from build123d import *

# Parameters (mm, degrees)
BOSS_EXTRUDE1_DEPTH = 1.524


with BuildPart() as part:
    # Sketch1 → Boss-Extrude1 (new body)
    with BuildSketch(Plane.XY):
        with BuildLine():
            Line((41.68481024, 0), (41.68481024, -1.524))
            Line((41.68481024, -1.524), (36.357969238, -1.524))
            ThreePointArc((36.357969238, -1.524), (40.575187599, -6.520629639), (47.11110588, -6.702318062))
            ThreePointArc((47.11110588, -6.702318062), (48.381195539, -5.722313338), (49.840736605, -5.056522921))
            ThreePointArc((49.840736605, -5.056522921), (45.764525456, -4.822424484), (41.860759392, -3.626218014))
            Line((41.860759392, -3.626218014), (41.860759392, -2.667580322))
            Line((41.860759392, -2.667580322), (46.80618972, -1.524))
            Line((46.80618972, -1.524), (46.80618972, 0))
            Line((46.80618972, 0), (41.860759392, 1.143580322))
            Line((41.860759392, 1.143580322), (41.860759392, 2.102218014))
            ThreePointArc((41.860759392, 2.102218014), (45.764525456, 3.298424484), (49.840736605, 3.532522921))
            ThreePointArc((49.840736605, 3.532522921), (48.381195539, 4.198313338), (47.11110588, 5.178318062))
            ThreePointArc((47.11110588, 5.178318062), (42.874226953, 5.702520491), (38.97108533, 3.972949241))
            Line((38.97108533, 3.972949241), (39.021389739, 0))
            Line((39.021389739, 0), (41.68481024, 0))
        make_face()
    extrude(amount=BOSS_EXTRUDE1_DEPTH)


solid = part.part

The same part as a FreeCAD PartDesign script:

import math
import FreeCAD as App
import Part
import Sketcher
from FreeCAD import Vector
Q = App.Units.Quantity

doc = App.newDocument("Part")
params = doc.addObject("Spreadsheet::Sheet", "Params")
for row, (alias, value) in enumerate([
    ("sketch1_height", "0.06 in"),
    ("pad1_length", "0.06 in"),
], start=1):
    params.set(f"A{row}", alias)
    params.set(f"B{row}", "=" + value)
    params.setAlias(f"B{row}", alias)

body = doc.addObject("PartDesign::Body", "Body")

sketch1 = body.newObject("Sketcher::SketchObject", "Sketch")
sketch1.AttachmentSupport = (doc.getObject("XY_Plane"), [""])
sketch1.MapMode = "FlatFace"
sketch1.addGeometry(Part.LineSegment(Vector(41.7, 0, 0), Vector(41.7, -1.5, 0)), False)
sketch1.addGeometry(Part.LineSegment(Vector(41.7, -1.5, 0), Vector(36.4, -1.5, 0)), False)
sketch1.addGeometry(Part.ArcOfCircle(Part.Circle(Vector(44, 0.7, 0), Vector(0, 0, 1), 8), math.radians(-164), math.radians(-67)), False)
sketch1.addGeometry(Part.ArcOfCircle(Part.Circle(Vector(52, -11.7, 0), Vector(0, 0, 1), 7), math.radians(108), math.radians(134)), False)
sketch1.addGeometry(Part.ArcOfCircle(Part.Circle(Vector(48.8, 12, 0), Vector(0, 0, 1), 17.1), math.radians(-114), math.radians(-86)), False)
sketch1.addGeometry(Part.LineSegment(Vector(41.9, -3.6, 0), Vector(41.9, -2.7, 0)), False)
sketch1.addGeometry(Part.LineSegment(Vector(41.9, -2.7, 0), Vector(46.8, -1.5, 0)), False)
sketch1.addGeometry(Part.LineSegment(Vector(46.8, -1.5, 0), Vector(46.8, 0, 0)), False)
sketch1.addGeometry(Part.LineSegment(Vector(46.8, 0, 0), Vector(41.9, 1.1, 0)), False)
sketch1.addGeometry(Part.LineSegment(Vector(41.9, 1.1, 0), Vector(41.9, 2.1, 0)), False)
sketch1.addGeometry(Part.ArcOfCircle(Part.Circle(Vector(48.8, -13.5, 0), Vector(0, 0, 1), 17.1), math.radians(86), math.radians(114)), False)
sketch1.addGeometry(Part.ArcOfCircle(Part.Circle(Vector(52, 10.2, 0), Vector(0, 0, 1), 7), math.radians(-134), math.radians(-108)), False)
sketch1.addGeometry(Part.ArcOfCircle(Part.Circle(Vector(44, -2.2, 0), Vector(0, 0, 1), 8), math.radians(67), math.radians(129)), False)
sketch1.addGeometry(Part.LineSegment(Vector(39, 4, 0), Vector(39, 0, 0)), False)
sketch1.addGeometry(Part.LineSegment(Vector(39, 0, 0), Vector(41.7, 0, 0)), False)
sketch1.addConstraint(Sketcher.Constraint("Coincident", 0, 2, 1, 1))
sketch1.addConstraint(Sketcher.Constraint("Coincident", 1, 2, 2, 1))
sketch1.addConstraint(Sketcher.Constraint("Coincident", 2, 2, 3, 2))
sketch1.addConstraint(Sketcher.Constraint("Coincident", 3, 1, 4, 2))
sketch1.addConstraint(Sketcher.Constraint("Coincident", 4, 1, 5, 1))
sketch1.addConstraint(Sketcher.Constraint("Coincident", 5, 2, 6, 1))
sketch1.addConstraint(Sketcher.Constraint("Coincident", 6, 2, 7, 1))
sketch1.addConstraint(Sketcher.Constraint("Coincident", 7, 2, 8, 1))
sketch1.addConstraint(Sketcher.Constraint("Coincident", 8, 2, 9, 1))
sketch1.addConstraint(Sketcher.Constraint("Coincident", 9, 2, 10, 2))
sketch1.addConstraint(Sketcher.Constraint("Coincident", 10, 1, 11, 2))
sketch1.addConstraint(Sketcher.Constraint("Coincident", 11, 1, 12, 1))
sketch1.addConstraint(Sketcher.Constraint("Coincident", 12, 2, 13, 1))
sketch1.addConstraint(Sketcher.Constraint("Coincident", 13, 2, 14, 1))
sketch1.addConstraint(Sketcher.Constraint("Coincident", 14, 2, 0, 1))
sketch1.addConstraint(Sketcher.Constraint("Vertical", 0))
sketch1.addConstraint(Sketcher.Constraint("Horizontal", 1))
sketch1.addConstraint(Sketcher.Constraint("Vertical", 5))
sketch1.addConstraint(Sketcher.Constraint("Vertical", 7))
sketch1.addConstraint(Sketcher.Constraint("Vertical", 9))
sketch1.addConstraint(Sketcher.Constraint("Horizontal", 14))
sketch1.addConstraint(Sketcher.Constraint("Equal", 4, 10))
sketch1.addConstraint(Sketcher.Constraint("Equal", 3, 11))
sketch1.addConstraint(Sketcher.Constraint("Equal", 2, 12))
sketch1.addConstraint(Sketcher.Constraint("PointOnObject", 7, 2, -1))
sketch1.addConstraint(Sketcher.Constraint("PointOnObject", 13, 2, -1))
sketch1.addConstraint(Sketcher.Constraint("Horizontal", 1, 2, 6, 2))
sketch1.addConstraint(Sketcher.Constraint("Vertical", 4, 3, 10, 3))
sketch1.addConstraint(Sketcher.Constraint("Vertical", 3, 3, 11, 3))
sketch1.addConstraint(Sketcher.Constraint("Vertical", 2, 3, 12, 3))
sketch1.addConstraint(Sketcher.Constraint("Vertical", 5, 2, 8, 2))
sketch1.addConstraint(Sketcher.Constraint("Vertical", 3, 1, 10, 1))
sketch1.addConstraint(Sketcher.Constraint("Vertical", 2, 2, 11, 1))
sketch1.addConstraint(Sketcher.Constraint("Equal", 5, 9))
sketch1.addConstraint(Sketcher.Constraint("Equal", 6, 8))
sketch1.addConstraint(Sketcher.Constraint("DistanceY", 0, 2, 0, 1, Q("0.06 in")))
sketch1.addConstraint(Sketcher.Constraint("Radius", 2, 7.99962))
sketch1.addConstraint(Sketcher.Constraint("Radius", 4, 17.05506))
sketch1.addConstraint(Sketcher.Constraint("Radius", 3, 7.014095))
sketch1.addConstraint(Sketcher.Constraint("DistanceX", 1, 2, 1, 1, 5.326841))
sketch1.addConstraint(Sketcher.Constraint("DistanceX", 14, 1, 14, 2, 2.663421))
sketch1.addConstraint(Sketcher.Constraint("DistanceY", 2, 3, 4, 3, 11.2783))
sketch1.addConstraint(Sketcher.Constraint("DistanceX", 1, 2, 10, 3, 12.415499))
sketch1.addConstraint(Sketcher.Constraint("DistanceY", 2, 2, 4, 1, 3.0761))
sketch1.addConstraint(Sketcher.Constraint("DistanceY", 4, 1, 8, 2, 4.769798))
sketch1.addConstraint(Sketcher.Constraint("Distance", 6, 5.075929))
sketch1.addConstraint(Sketcher.Constraint("DistanceY", 5, 1, 5, 2, 0.958638))
sketch1.addConstraint(Sketcher.Constraint("DistanceY", -1, 1, 2, 3, 0.686811))
sketch1.addConstraint(Sketcher.Constraint("DistanceX", -1, 1, 3, 3, 52.002881))
sketch1.addConstraint(Sketcher.Constraint("DistanceX", -1, 1, 4, 3, 48.773468))
sketch1.addConstraint(Sketcher.Constraint("DistanceY", -1, 1, 12, 2, 3.972949))
sketch1.setExpression("Constraints[35]", "Params.sketch1_height")
pad1 = body.newObject("PartDesign::Pad", "Pad")
pad1.Profile = sketch1
pad1.setExpression("Length", "Params.pad1_length")

doc.recompute()
